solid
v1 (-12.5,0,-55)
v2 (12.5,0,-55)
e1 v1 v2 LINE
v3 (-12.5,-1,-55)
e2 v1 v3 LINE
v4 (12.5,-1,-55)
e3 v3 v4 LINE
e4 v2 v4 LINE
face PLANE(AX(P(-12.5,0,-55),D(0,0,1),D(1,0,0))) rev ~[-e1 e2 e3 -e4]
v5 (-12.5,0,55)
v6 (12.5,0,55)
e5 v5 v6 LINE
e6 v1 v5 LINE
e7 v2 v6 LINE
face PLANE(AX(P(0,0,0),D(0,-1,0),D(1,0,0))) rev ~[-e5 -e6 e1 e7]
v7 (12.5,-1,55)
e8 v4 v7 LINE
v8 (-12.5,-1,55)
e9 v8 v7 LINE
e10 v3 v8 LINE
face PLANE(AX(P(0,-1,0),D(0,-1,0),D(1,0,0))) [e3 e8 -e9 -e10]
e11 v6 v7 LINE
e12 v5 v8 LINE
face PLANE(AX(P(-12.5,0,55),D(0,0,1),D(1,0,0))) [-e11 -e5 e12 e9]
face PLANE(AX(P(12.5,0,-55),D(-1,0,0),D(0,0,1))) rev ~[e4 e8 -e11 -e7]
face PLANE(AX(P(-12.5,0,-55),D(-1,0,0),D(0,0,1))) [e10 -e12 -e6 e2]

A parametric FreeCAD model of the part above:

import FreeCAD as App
import Part
import Sketcher

V = App.Vector
Q = App.Units.Quantity

doc = App.newDocument("Part")
body = doc.addObject("PartDesign::Body", "Body")

# Sketch on XZ plane
sketch1 = doc.addObject("Sketcher::SketchObject", "Sketch")
body.addObject(sketch1)
sketch1.AttachmentSupport = (doc.XZ_Plane, [""])
sketch1.MapMode = "FlatFace"
sketch1.addGeometry([
    Part.LineSegment(V(-12.5, 55, 0), V(-12.5, -55, 0)),
    Part.LineSegment(V(-12.5, -55, 0), V(12.5, -55, 0)),
    Part.LineSegment(V(12.5, -55, 0), V(12.5, 55, 0)),
    Part.LineSegment(V(12.5, 55, 0), V(-12.5, 55, 0)),
], False)
sketch1.addConstraint([
    Sketcher.Constraint("Coincident", 0, 2, 1, 1),
    Sketcher.Constraint("Coincident", 1, 2, 2, 1),
    Sketcher.Constraint("Coincident", 2, 2, 3, 1),
    Sketcher.Constraint("Coincident", 3, 2, 0, 1),
    Sketcher.Constraint("Vertical", 0),
    Sketcher.Constraint("Horizontal", 1),
    Sketcher.Constraint("Vertical", 2),
    Sketcher.Constraint("Horizontal", 3),
    Sketcher.Constraint("Symmetric", 0, 2, 2, 2, -1, 1),
    Sketcher.Constraint("DistanceX", 1, 1, 1, 2, Q("25 mm")),
    Sketcher.Constraint("DistanceY", 0, 2, 0, 1, Q("110 mm")),
])
pad1 = doc.addObject("PartDesign::Pad", "Pad")
body.addObject(pad1)
pad1.Profile = sketch1
pad1.Length = 1

doc.recompute()
